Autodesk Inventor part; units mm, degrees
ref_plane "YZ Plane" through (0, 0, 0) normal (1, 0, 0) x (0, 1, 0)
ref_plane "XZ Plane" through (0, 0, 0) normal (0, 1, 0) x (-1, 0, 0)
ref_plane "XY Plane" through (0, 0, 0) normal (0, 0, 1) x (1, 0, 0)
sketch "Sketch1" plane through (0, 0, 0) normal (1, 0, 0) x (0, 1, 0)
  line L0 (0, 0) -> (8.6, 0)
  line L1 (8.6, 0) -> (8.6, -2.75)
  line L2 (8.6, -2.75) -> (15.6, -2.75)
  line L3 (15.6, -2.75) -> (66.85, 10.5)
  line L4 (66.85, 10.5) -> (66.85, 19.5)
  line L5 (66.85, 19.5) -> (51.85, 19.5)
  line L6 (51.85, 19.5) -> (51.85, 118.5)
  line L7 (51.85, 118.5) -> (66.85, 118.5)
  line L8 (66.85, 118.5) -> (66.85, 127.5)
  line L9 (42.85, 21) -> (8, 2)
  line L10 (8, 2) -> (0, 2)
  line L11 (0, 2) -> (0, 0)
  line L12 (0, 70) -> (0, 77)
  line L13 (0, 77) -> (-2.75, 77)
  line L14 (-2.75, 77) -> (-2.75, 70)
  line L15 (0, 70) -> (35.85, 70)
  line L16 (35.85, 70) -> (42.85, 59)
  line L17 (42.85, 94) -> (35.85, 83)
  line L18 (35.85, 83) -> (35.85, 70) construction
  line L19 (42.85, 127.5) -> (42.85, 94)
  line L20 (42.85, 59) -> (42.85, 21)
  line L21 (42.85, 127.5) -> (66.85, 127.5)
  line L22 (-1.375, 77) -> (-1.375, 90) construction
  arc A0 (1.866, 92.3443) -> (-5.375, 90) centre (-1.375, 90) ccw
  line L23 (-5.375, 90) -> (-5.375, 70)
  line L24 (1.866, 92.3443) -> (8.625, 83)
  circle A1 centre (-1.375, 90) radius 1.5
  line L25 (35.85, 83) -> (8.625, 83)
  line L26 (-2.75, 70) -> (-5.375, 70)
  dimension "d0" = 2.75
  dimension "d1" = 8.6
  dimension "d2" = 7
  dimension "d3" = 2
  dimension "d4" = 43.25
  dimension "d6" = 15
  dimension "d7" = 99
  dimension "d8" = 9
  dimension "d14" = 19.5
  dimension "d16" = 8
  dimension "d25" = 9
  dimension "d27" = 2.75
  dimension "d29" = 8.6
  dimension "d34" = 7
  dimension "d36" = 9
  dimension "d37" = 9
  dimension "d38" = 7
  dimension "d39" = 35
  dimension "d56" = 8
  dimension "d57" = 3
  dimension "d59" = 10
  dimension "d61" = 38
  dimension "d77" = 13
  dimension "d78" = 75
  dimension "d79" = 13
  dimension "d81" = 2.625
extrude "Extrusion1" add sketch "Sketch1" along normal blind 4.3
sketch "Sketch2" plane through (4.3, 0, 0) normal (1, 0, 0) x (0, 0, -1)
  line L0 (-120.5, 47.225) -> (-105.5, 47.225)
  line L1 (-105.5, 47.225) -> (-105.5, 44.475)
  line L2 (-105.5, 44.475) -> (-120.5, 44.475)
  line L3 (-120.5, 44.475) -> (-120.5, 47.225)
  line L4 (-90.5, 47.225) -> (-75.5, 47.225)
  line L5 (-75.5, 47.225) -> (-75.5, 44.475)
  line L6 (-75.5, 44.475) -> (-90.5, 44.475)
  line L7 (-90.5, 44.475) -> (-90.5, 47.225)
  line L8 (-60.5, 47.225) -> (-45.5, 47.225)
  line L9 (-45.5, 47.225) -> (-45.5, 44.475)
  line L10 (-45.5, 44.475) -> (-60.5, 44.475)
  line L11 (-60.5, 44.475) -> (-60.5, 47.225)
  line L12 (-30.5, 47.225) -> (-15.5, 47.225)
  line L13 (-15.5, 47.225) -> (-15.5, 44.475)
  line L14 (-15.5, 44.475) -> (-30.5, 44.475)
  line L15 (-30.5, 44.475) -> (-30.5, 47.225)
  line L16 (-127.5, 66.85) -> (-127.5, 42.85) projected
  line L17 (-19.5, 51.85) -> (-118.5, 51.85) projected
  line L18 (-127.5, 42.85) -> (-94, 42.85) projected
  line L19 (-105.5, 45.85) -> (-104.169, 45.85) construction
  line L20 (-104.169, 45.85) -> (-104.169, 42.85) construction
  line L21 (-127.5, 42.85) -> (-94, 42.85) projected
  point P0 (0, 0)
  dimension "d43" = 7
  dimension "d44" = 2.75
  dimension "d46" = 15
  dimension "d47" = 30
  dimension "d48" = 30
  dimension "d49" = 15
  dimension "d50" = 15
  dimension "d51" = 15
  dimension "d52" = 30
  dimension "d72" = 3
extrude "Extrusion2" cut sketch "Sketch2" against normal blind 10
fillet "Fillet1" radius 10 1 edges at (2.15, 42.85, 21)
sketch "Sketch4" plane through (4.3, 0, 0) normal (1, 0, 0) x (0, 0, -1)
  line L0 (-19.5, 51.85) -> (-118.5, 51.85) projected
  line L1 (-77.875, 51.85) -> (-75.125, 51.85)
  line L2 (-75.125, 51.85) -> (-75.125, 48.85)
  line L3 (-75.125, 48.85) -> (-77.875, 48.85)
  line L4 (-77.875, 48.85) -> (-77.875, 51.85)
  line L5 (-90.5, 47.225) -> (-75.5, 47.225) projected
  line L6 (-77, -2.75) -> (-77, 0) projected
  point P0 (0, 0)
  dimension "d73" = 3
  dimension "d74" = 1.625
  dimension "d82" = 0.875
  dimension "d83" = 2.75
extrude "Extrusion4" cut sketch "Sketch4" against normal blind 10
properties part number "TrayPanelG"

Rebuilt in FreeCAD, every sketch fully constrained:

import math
import FreeCAD as App
import Part
import Sketcher

V = App.Vector
Q = App.Units.Quantity


def edges_at(feature, points):
    """Names of the edges that pass closest to the given points."""
    edges = feature.Shape.Edges
    near = lambda p: min(range(len(edges)), key=lambda i: edges[i].distToShape(Part.Vertex(*p))[0])
    return sorted({f"Edge{near(p) + 1}" for p in points})

doc = App.newDocument("Part")
body = doc.addObject("PartDesign::Body", "Body")

# Sketch on YZ plane
sketch1 = doc.addObject("Sketcher::SketchObject", "Sketch")
body.addObject(sketch1)
sketch1.AttachmentSupport = (doc.YZ_Plane, [""])
sketch1.MapMode = "FlatFace"
sketch1.addGeometry(Part.LineSegment(V(0, 2, 0), V(0, 0, 0)), False)
sketch1.addGeometry(Part.LineSegment(V(0, 0, 0), V(8.6, 0, 0)), False)
sketch1.addGeometry(Part.LineSegment(V(8.6, 0, 0), V(8.6, -2.75, 0)), False)
sketch1.addGeometry(Part.LineSegment(V(8.6, -2.75, 0), V(15.6, -2.75, 0)), False)
sketch1.addGeometry(Part.LineSegment(V(15.6, -2.75, 0), V(66.85, 10.5, 0)), False)
sketch1.addGeometry(Part.LineSegment(V(66.85, 10.5, 0), V(66.85, 19.5, 0)), False)
sketch1.addGeometry(Part.LineSegment(V(66.85, 19.5, 0), V(51.85, 19.5, 0)), False)
sketch1.addGeometry(Part.LineSegment(V(51.85, 19.5, 0), V(51.85, 118.5, 0)), False)
sketch1.addGeometry(Part.LineSegment(V(51.85, 118.5, 0), V(66.85, 118.5, 0)), False)
sketch1.addGeometry(Part.LineSegment(V(66.85, 118.5, 0), V(66.85, 127.5, 0)), False)
sketch1.addGeometry(Part.LineSegment(V(66.85, 127.5, 0), V(42.85, 127.5, 0)), False)
sketch1.addGeometry(Part.LineSegment(V(42.85, 127.5, 0), V(42.85, 94, 0)), False)
sketch1.addGeometry(Part.LineSegment(V(42.85, 94, 0), V(35.85, 83, 0)), False)
sketch1.addGeometry(Part.LineSegment(V(35.85, 83, 0), V(8.625, 83, 0)), False)
sketch1.addGeometry(Part.LineSegment(V(8.625, 83, 0), V(1.866, 92.3443, 0)), False)
sketch1.addGeometry(Part.ArcOfCircle(Part.Circle(V(-1.375, 90, 0), V(0, 0, 1), 3.999978), math.radians(35.879199), math.radians(180)), False)
sketch1.addGeometry(Part.LineSegment(V(-5.375, 90, 0), V(-5.375, 70, 0)), False)
sketch1.addGeometry(Part.LineSegment(V(-5.375, 70, 0), V(-2.75, 70, 0)), False)
sketch1.addGeometry(Part.LineSegment(V(-2.75, 70, 0), V(-2.75, 77, 0)), False)
sketch1.addGeometry(Part.LineSegment(V(-2.75, 77, 0), V(0, 77, 0)), False)
sketch1.addGeometry(Part.LineSegment(V(0, 77, 0), V(0, 70, 0)), False)
sketch1.addGeometry(Part.LineSegment(V(0, 70, 0), V(35.85, 70, 0)), False)
sketch1.addGeometry(Part.LineSegment(V(35.85, 70, 0), V(42.85, 59, 0)), False)
sketch1.addGeometry(Part.LineSegment(V(42.85, 59, 0), V(42.85, 21, 0)), False)
sketch1.addGeometry(Part.LineSegment(V(42.85, 21, 0), V(8, 2, 0)), False)
sketch1.addGeometry(Part.LineSegment(V(8, 2, 0), V(0, 2, 0)), False)
sketch1.addGeometry(Part.Circle(V(-1.375, 90, 0), V(0, 0, 1), 1.5), False)
sketch1.addConstraint(Sketcher.Constraint("Coincident", 0, 2, 1, 1))
sketch1.addConstraint(Sketcher.Constraint("Coincident", 1, 2, 2, 1))
sketch1.addConstraint(Sketcher.Constraint("Coincident", 2, 2, 3, 1))
sketch1.addConstraint(Sketcher.Constraint("Coincident", 3, 2, 4, 1))
sketch1.addConstraint(Sketcher.Constraint("Coincident", 4, 2, 5, 1))
sketch1.addConstraint(Sketcher.Constraint("Coincident", 5, 2, 6, 1))
sketch1.addConstraint(Sketcher.Constraint("Coincident", 6, 2, 7, 1))
sketch1.addConstraint(Sketcher.Constraint("Coincident", 7, 2, 8, 1))
sketch1.addConstraint(Sketcher.Constraint("Coincident", 8, 2, 9, 1))
sketch1.addConstraint(Sketcher.Constraint("Coincident", 9, 2, 10, 1))
sketch1.addConstraint(Sketcher.Constraint("Coincident", 10, 2, 11, 1))
sketch1.addConstraint(Sketcher.Constraint("Coincident", 11, 2, 12, 1))
sketch1.addConstraint(Sketcher.Constraint("Coincident", 12, 2, 13, 1))
sketch1.addConstraint(Sketcher.Constraint("Coincident", 13, 2, 14, 1))
sketch1.addConstraint(Sketcher.Constraint("Tangent", 14, 2, 15, 1))
sketch1.addConstraint(Sketcher.Constraint("Tangent", 15, 2, 16, 1))
sketch1.addConstraint(Sketcher.Constraint("Coincident", 16, 2, 17, 1))
sketch1.addConstraint(Sketcher.Constraint("Coincident", 17, 2, 18, 1))
sketch1.addConstraint(Sketcher.Constraint("Coincident", 18, 2, 19, 1))
sketch1.addConstraint(Sketcher.Constraint("Coincident", 19, 2, 20, 1))
sketch1.addConstraint(Sketcher.Constraint("Coincident", 20, 2, 21, 1))
sketch1.addConstraint(Sketcher.Constraint("Coincident", 21, 2, 22, 1))
sketch1.addConstraint(Sketcher.Constraint("Coincident", 22, 2, 23, 1))
sketch1.addConstraint(Sketcher.Constraint("Coincident", 23, 2, 24, 1))
sketch1.addConstraint(Sketcher.Constraint("Coincident", 24, 2, 25, 1))
sketch1.addConstraint(Sketcher.Constraint("Coincident", 25, 2, 0, 1))
sketch1.addConstraint(Sketcher.Constraint("Vertical", 0))
sketch1.addConstraint(Sketcher.Constraint("Horizontal", 1))
sketch1.addConstraint(Sketcher.Constraint("Vertical", 2))
sketch1.addConstraint(Sketcher.Constraint("Horizontal", 3))
sketch1.addConstraint(Sketcher.Constraint("Vertical", 5))
sketch1.addConstraint(Sketcher.Constraint("Horizontal", 6))
sketch1.addConstraint(Sketcher.Constraint("Vertical", 7))
sketch1.addConstraint(Sketcher.Constraint("Horizontal", 8))
sketch1.addConstraint(Sketcher.Constraint("Vertical", 9))
sketch1.addConstraint(Sketcher.Constraint("Horizontal", 10))
sketch1.addConstraint(Sketcher.Constraint("Vertical", 11))
sketch1.addConstraint(Sketcher.Constraint("Horizontal", 13))
sketch1.addConstraint(Sketcher.Constraint("Vertical", 16))
sketch1.addConstraint(Sketcher.Constraint("Horizontal", 17))
sketch1.addConstraint(Sketcher.Constraint("Vertical", 18))
sketch1.addConstraint(Sketcher.Constraint("Horizontal", 19))
sketch1.addConstraint(Sketcher.Constraint("Vertical", 20))
sketch1.addConstraint(Sketcher.Constraint("Horizontal", 21))
sketch1.addConstraint(Sketcher.Constraint("Vertical", 23))
sketch1.addConstraint(Sketcher.Constraint("Horizontal", 25))
sketch1.addConstraint(Sketcher.Constraint("Coincident", 0, 2, -1, 1))
sketch1.addConstraint(Sketcher.Constraint("Coincident", 26, 3, 15, 3))
sketch1.addConstraint(Sketcher.Constraint("PointOnObject", 19, 2, -2))
sketch1.addConstraint(Sketcher.Constraint("Horizontal", 17, 2, 20, 2))
sketch1.addConstraint(Sketcher.Constraint("Vertical", 5, 2, 8, 2))
sketch1.addConstraint(Sketcher.Constraint("Vertical", 12, 2, 21, 2))
sketch1.addConstraint(Sketcher.Constraint("Vertical", 11, 2, 22, 2))
sketch1.addConstraint(Sketcher.Constraint("Equal", 19, 2))
sketch1.addConstraint(Sketcher.Constraint("Equal", 5, 9))
sketch1.addConstraint(Sketcher.Constraint("Equal", 3, 18))
sketch1.addConstraint(Sketcher.Constraint("Equal", 12, 22))
sketch1.addConstraint(Sketcher.Constraint("Diameter", 26, Q("3 mm")))
sketch1.addConstraint(Sketcher.Constraint("Radius", 15, Q("4 mm")))
sketch1.addConstraint(Sketcher.Constraint("DistanceX", 3, 1, 3, 2, Q("7 mm")))
sketch1.addConstraint(Sketcher.Constraint("DistanceX", 6, 2, 6, 1, Q("15 mm")))
sketch1.addConstraint(Sketcher.Constraint("DistanceX", 25, 2, 25, 1, Q("8 mm")))
sketch1.addConstraint(Sketcher.Constraint("DistanceY", 0, 2, 0, 1, Q("2 mm")))
sketch1.addConstraint(Sketcher.Constraint("DistanceY", 5, 1, 5, 2, Q("9 mm")))
sketch1.addConstraint(Sketcher.Constraint("DistanceY", 7, 1, 7, 2, Q("99 mm")))
sketch1.addConstraint(Sketcher.Constraint("DistanceY", 23, 2, 23, 1, Q("38 mm")))
sketch1.addConstraint(Sketcher.Constraint("DistanceX", 1, 1, 1, 2, Q("8.6 mm")))
sketch1.addConstraint(Sketcher.Constraint("DistanceX", 10, 2, 7, 2, Q("9 mm")))
sketch1.addConstraint(Sketcher.Constraint("DistanceX", 12, 2, 11, 2, Q("7 mm")))
sketch1.addConstraint(Sketcher.Constraint("DistanceY", 12, 2, 15, 3, Q("7 mm")))
sketch1.addConstraint(Sketcher.Constraint("DistanceX", 15, 3, 13, 2, Q("10 mm")))
sketch1.addConstraint(Sketcher.Constraint("DistanceY", 16, 2, 13, 2, Q("13 mm")))
sketch1.addConstraint(Sketcher.Constraint("DistanceY", 22, 2, 11, 2, Q("35 mm")))
sketch1.addConstraint(Sketcher.Constraint("DistanceX", 19, 1, 19, 2, Q("2.75 mm")))
sketch1.addConstraint(Sketcher.Constraint("DistanceY", -1, 1, 5, 2, Q("19.5 mm")))
sketch1.addConstraint(Sketcher.Constraint("DistanceX", 17, 1, 17, 2, Q("2.625 mm")))
sketch1.addConstraint(Sketcher.Constraint("DistanceX", 1, 2, 6, 2, Q("43.25 mm")))
sketch1.addConstraint(Sketcher.Constraint("DistanceY", 11, 2, 11, 1, Q("33.5 mm")))
pad1 = doc.addObject("PartDesign::Pad", "Pad")
body.addObject(pad1)
pad1.Profile = sketch1
pad1.Length = 4.3

# Sketch on YZ plane
sketch2 = doc.addObject("Sketcher::SketchObject", "Sketch001")
body.addObject(sketch2)
sketch2.AttachmentSupport = (doc.YZ_Plane, [""])
sketch2.MapMode = "FlatFace"
sketch2.AttachmentOffset = App.Placement(V(0, 0, 4.3), App.Rotation())
sketch2.addGeometry(Part.LineSegment(V(47.225, 105.5, 0), V(47.225, 120.5, 0)), False)
sketch2.addGeometry(Part.LineSegment(V(47.225, 120.5, 0), V(44.475, 120.5, 0)), False)
sketch2.addGeometry(Part.LineSegment(V(44.475, 120.5, 0), V(44.475, 105.5, 0)), False)
sketch2.addGeometry(Part.LineSegment(V(44.475, 105.5, 0), V(47.225, 105.5, 0)), False)
sketch2.addGeometry(Part.LineSegment(V(47.225, 75.5, 0), V(47.225, 90.5, 0)), False)
sketch2.addGeometry(Part.LineSegment(V(47.225, 90.5, 0), V(44.475, 90.5, 0)), False)
sketch2.addGeometry(Part.LineSegment(V(44.475, 90.5, 0), V(44.475, 75.5, 0)), False)
sketch2.addGeometry(Part.LineSegment(V(44.475, 75.5, 0), V(47.225, 75.5, 0)), False)
sketch2.addGeometry(Part.LineSegment(V(47.225, 45.5, 0), V(47.225, 60.5, 0)), False)
sketch2.addGeometry(Part.LineSegment(V(47.225, 60.5, 0), V(44.475, 60.5, 0)), False)
sketch2.addGeometry(Part.LineSegment(V(44.475, 60.5, 0), V(44.475, 45.5, 0)), False)
sketch2.addGeometry(Part.LineSegment(V(44.475, 45.5, 0), V(47.225, 45.5, 0)), False)
sketch2.addGeometry(Part.LineSegment(V(47.225, 15.5, 0), V(47.225, 30.5, 0)), False)
sketch2.addGeometry(Part.LineSegment(V(47.225, 30.5, 0), V(44.475, 30.5, 0)), False)
sketch2.addGeometry(Part.LineSegment(V(44.475, 30.5, 0), V(44.475, 15.5, 0)), False)
sketch2.addGeometry(Part.LineSegment(V(44.475, 15.5, 0), V(47.225, 15.5, 0)), False)
sketch2.addConstraint(Sketcher.Constraint("Coincident", 0, 2, 1, 1))
sketch2.addConstraint(Sketcher.Constraint("Coincident", 1, 2, 2, 1))
sketch2.addConstraint(Sketcher.Constraint("Coincident", 2, 2, 3, 1))
sketch2.addConstraint(Sketcher.Constraint("Coincident", 3, 2, 0, 1))
sketch2.addConstraint(Sketcher.Constraint("Coincident", 4, 2, 5, 1))
sketch2.addConstraint(Sketcher.Constraint("Coincident", 5, 2, 6, 1))
sketch2.addConstraint(Sketcher.Constraint("Coincident", 6, 2, 7, 1))
sketch2.addConstraint(Sketcher.Constraint("Coincident", 7, 2, 4, 1))
sketch2.addConstraint(Sketcher.Constraint("Coincident", 8, 2, 9, 1))
sketch2.addConstraint(Sketcher.Constraint("Coincident", 9, 2, 10, 1))
sketch2.addConstraint(Sketcher.Constraint("Coincident", 10, 2, 11, 1))
sketch2.addConstraint(Sketcher.Constraint("Coincident", 11, 2, 8, 1))
sketch2.addConstraint(Sketcher.Constraint("Coincident", 12, 2, 13, 1))
sketch2.addConstraint(Sketcher.Constraint("Coincident", 13, 2, 14, 1))
sketch2.addConstraint(Sketcher.Constraint("Coincident", 14, 2, 15, 1))
sketch2.addConstraint(Sketcher.Constraint("Coincident", 15, 2, 12, 1))
sketch2.addConstraint(Sketcher.Constraint("Vertical", 0))
sketch2.addConstraint(Sketcher.Constraint("Horizontal", 1))
sketch2.addConstraint(Sketcher.Constraint("Vertical", 2))
sketch2.addConstraint(Sketcher.Constraint("Horizontal", 3))
sketch2.addConstraint(Sketcher.Constraint("Vertical", 4))
sketch2.addConstraint(Sketcher.Constraint("Horizontal", 5))
sketch2.addConstraint(Sketcher.Constraint("Vertical", 6))
sketch2.addConstraint(Sketcher.Constraint("Horizontal", 7))
sketch2.addConstraint(Sketcher.Constraint("Vertical", 8))
sketch2.addConstraint(Sketcher.Constraint("Horizontal", 9))
sketch2.addConstraint(Sketcher.Constraint("Vertical", 10))
sketch2.addConstraint(Sketcher.Constraint("Horizontal", 11))
sketch2.addConstraint(Sketcher.Constraint("Vertical", 12))
sketch2.addConstraint(Sketcher.Constraint("Horizontal", 13))
sketch2.addConstraint(Sketcher.Constraint("Vertical", 14))
sketch2.addConstraint(Sketcher.Constraint("Horizontal", 15))
sketch2.addConstraint(Sketcher.Constraint("Vertical", 3, 2, 4, 2))
sketch2.addConstraint(Sketcher.Constraint("Vertical", 2, 2, 5, 2))
sketch2.addConstraint(Sketcher.Constraint("Vertical", 7, 2, 8, 2))
sketch2.addConstraint(Sketcher.Constraint("Vertical", 6, 2, 9, 2))
sketch2.addConstraint(Sketcher.Constraint("Vertical", 11, 2, 12, 2))
sketch2.addConstraint(Sketcher.Constraint("Vertical", 10, 2, 13, 2))
sketch2.addConstraint(Sketcher.Constraint("Equal", 2, 4))
sketch2.addConstraint(Sketcher.Constraint("Equal", 6, 8))
sketch2.addConstraint(Sketcher.Constraint("Equal", 10, 12))
sketch2.addConstraint(Sketcher.Constraint("DistanceY", 0, 1, 0, 2, Q("15 mm")))
sketch2.addConstraint(Sketcher.Constraint("DistanceY", 4, 2, 3, 2, Q("15 mm")))
sketch2.addConstraint(Sketcher.Constraint("DistanceY", 8, 2, 7, 2, Q("15 mm")))
sketch2.addConstraint(Sketcher.Constraint("DistanceY", 12, 2, 11, 2, Q("15 mm")))
sketch2.addConstraint(Sketcher.Constraint("DistanceX", 1, 2, 1, 1, Q("2.75 mm")))
sketch2.addConstraint(Sketcher.Constraint("DistanceY", -1, 1, 0, 2, Q("120.5 mm")))
sketch2.addConstraint(Sketcher.Constraint("DistanceX", -1, 1, 0, 2, Q("47.225 mm")))
pocket1 = doc.addObject("PartDesign::Pocket", "Pocket")
body.addObject(pocket1)
pocket1.Profile = sketch2
pocket1.Length = 10
doc.recompute()

fillet = doc.addObject("PartDesign::Fillet", "Fillet")
body.addObject(fillet)
fillet.Base = (pocket1, edges_at(pocket1, [(2.15, 42.85, 21)]))
fillet.Radius = 10

# Sketch on YZ plane
sketch3 = doc.addObject("Sketcher::SketchObject", "Sketch002")
body.addObject(sketch3)
sketch3.AttachmentSupport = (doc.YZ_Plane, [""])
sketch3.MapMode = "FlatFace"
sketch3.AttachmentOffset = App.Placement(V(0, 0, 4.3), App.Rotation())
sketch3.addGeometry(Part.LineSegment(V(48.85, 75.125, 0), V(51.85, 75.125, 0)), False)
sketch3.addGeometry(Part.LineSegment(V(51.85, 75.125, 0), V(51.85, 77.875, 0)), False)
sketch3.addGeometry(Part.LineSegment(V(51.85, 77.875, 0), V(48.85, 77.875, 0)), False)
sketch3.addGeometry(Part.LineSegment(V(48.85, 77.875, 0), V(48.85, 75.125, 0)), False)
sketch3.addConstraint(Sketcher.Constraint("Coincident", 0, 2, 1, 1))
sketch3.addConstraint(Sketcher.Constraint("Coincident", 1, 2, 2, 1))
sketch3.addConstraint(Sketcher.Constraint("Coincident", 2, 2, 3, 1))
sketch3.addConstraint(Sketcher.Constraint("Coincident", 3, 2, 0, 1))
sketch3.addConstraint(Sketcher.Constraint("Horizontal", 0))
sketch3.addConstraint(Sketcher.Constraint("Vertical", 1))
sketch3.addConstraint(Sketcher.Constraint("Horizontal", 2))
sketch3.addConstraint(Sketcher.Constraint("Vertical", 3))
sketch3.addConstraint(Sketcher.Constraint("DistanceX", 0, 1, 0, 2, Q("3 mm")))
sketch3.addConstraint(Sketcher.Constraint("DistanceY", 1, 1, 1, 2, Q("2.75 mm")))
sketch3.addConstraint(Sketcher.Constraint("DistanceX", -1, 1, 0, 2, Q("51.85 mm")))
sketch3.addConstraint(Sketcher.Constraint("DistanceY", -1, 1, 0, 2, Q("75.125 mm")))
pocket2 = doc.addObject("PartDesign::Pocket", "Pocket001")
body.addObject(pocket2)
pocket2.Profile = sketch3
pocket2.Length = 10

doc.recompute()
